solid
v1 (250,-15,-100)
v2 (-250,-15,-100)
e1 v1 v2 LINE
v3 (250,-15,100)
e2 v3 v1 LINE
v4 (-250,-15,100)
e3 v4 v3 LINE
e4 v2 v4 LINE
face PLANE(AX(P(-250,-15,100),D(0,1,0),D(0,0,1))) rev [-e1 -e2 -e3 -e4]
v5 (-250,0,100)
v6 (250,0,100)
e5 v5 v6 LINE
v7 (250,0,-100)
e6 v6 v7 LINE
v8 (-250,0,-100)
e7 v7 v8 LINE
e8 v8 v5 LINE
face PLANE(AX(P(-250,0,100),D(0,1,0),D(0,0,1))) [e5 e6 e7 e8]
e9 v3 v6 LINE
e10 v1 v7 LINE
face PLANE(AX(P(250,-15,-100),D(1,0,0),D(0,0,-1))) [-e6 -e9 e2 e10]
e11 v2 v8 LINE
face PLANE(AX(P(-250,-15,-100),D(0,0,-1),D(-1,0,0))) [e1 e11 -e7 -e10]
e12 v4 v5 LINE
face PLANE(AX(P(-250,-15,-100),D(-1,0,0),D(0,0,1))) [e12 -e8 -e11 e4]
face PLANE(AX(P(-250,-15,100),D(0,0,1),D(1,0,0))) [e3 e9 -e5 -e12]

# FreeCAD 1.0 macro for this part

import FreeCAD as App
import Part
import Sketcher
Q = App.Units.Quantity


def add_polygon(sketch, points):
    """Adds a closed chain of lines whose ends are joined by coincident constraints."""
    first, n = sketch.GeometryCount, len(points)
    for a, b in zip(points, points[1:] + points[:1]):
        sketch.addGeometry(Part.LineSegment(App.Vector(*a, 0), App.Vector(*b, 0)), False)
    for i in range(n):
        sketch.addConstraint(Sketcher.Constraint("Coincident", first + i, 2, first + (i + 1) % n, 1))

doc = App.newDocument("Part")
body = doc.addObject("PartDesign::Body", "Body")

# Sketch on XZ plane
sketch1 = body.newObject("Sketcher::SketchObject", "Sketch")
sketch1.AttachmentSupport = (doc.getObject("XZ_Plane"), [""])
sketch1.MapMode = "FlatFace"
add_polygon(sketch1, [(-250, -100), (-250, 100), (250, 100), (250, -100)])  # lines 0-3
sketch1.addConstraint(Sketcher.Constraint("Vertical", 0))
sketch1.addConstraint(Sketcher.Constraint("Horizontal", 1))
sketch1.addConstraint(Sketcher.Constraint("Vertical", 2))
sketch1.addConstraint(Sketcher.Constraint("Horizontal", 3))
sketch1.addConstraint(Sketcher.Constraint("Symmetric", 0, 2, 2, 2, -1, 1))
sketch1.addConstraint(Sketcher.Constraint("DistanceX", 1, 1, 1, 2, Q("500 mm")))
sketch1.addConstraint(Sketcher.Constraint("DistanceY", 0, 1, 0, 2, Q("200 mm")))
pad1 = body.newObject("PartDesign::Pad", "Pad")
pad1.Profile = sketch1
pad1.Length = 15

doc.recompute()
